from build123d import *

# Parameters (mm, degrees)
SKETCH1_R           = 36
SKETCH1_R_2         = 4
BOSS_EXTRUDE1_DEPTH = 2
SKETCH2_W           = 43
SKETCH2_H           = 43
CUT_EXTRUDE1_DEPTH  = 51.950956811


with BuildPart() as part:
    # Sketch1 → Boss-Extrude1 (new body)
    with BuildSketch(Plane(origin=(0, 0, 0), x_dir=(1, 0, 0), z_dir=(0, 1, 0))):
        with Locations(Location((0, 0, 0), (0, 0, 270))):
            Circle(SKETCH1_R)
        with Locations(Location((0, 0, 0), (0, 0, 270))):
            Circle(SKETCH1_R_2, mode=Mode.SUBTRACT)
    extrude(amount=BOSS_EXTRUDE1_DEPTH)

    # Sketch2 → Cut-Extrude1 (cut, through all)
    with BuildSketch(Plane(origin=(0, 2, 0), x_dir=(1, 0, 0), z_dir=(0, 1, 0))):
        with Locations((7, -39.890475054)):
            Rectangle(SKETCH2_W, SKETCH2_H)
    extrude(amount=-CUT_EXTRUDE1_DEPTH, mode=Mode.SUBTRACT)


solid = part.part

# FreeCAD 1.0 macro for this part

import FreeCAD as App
import Part
import Sketcher
Q = App.Units.Quantity

doc = App.newDocument("Part")
params = doc.addObject("Spreadsheet::Sheet", "Params")
for row, (alias, value) in enumerate([
    ("sketch1_diameter", "72 mm"),
    ("sketch1_diameter2", "8 mm"),
    ("pad1_length", "2 mm"),
    ("sketch2_width", "43 mm"),
], start=1):
    params.set(f"A{row}", alias)
    params.set(f"B{row}", "=" + value)
    params.setAlias(f"B{row}", alias)

body = doc.addObject("PartDesign::Body", "Body")

sketch1 = body.newObject("Sketcher::SketchObject", "Sketch")
sketch1.AttachmentSupport = (doc.getObject("XZ_Plane"), [""])
sketch1.MapMode = "FlatFace"
sketch1.addGeometry(Part.Circle(App.Vector(0, 0, 0), App.Vector(0, 0, 1), 36), False)
sketch1.addGeometry(Part.Circle(App.Vector(0, 0, 0), App.Vector(0, 0, 1), 4), False)
sketch1.addConstraint(Sketcher.Constraint("Coincident", 0, 3, -1, 1))
sketch1.addConstraint(Sketcher.Constraint("Coincident", 1, 3, -1, 1))
sketch1.addConstraint(Sketcher.Constraint("Diameter", 0, Q("72 mm")))
sketch1.addConstraint(Sketcher.Constraint("Diameter", 1, Q("8 mm")))
sketch1.setExpression("Constraints[2]", "Params.sketch1_diameter")
sketch1.setExpression("Constraints[3]", "Params.sketch1_diameter2")
pad1 = body.newObject("PartDesign::Pad", "Pad")
pad1.Profile = sketch1
pad1.setExpression("Length", "Params.pad1_length")
pad1.Reversed = True

sketch2 = body.newObject("Sketcher::SketchObject", "Sketch001")
sketch2.AttachmentSupport = (doc.getObject("XZ_Plane"), [""])
sketch2.MapMode = "FlatFace"
sketch2.AttachmentOffset = App.Placement(App.Vector(0, 0, -2), App.Rotation())
sketch2.addGeometry(Part.LineSegment(App.Vector(-14, 18, 0), App.Vector(-14, 61, 0)), False)
sketch2.addGeometry(Part.LineSegment(App.Vector(-14, 61, 0), App.Vector(28, 61, 0)), False)
sketch2.addGeometry(Part.LineSegment(App.Vector(28, 61, 0), App.Vector(28, 18, 0)), False)
sketch2.addGeometry(Part.LineSegment(App.Vector(28, 18, 0), App.Vector(-14, 18, 0)), False)
sketch2.addConstraint(Sketcher.Constraint("Coincident", 0, 2, 1, 1))
sketch2.addConstraint(Sketcher.Constraint("Coincident", 1, 2, 2, 1))
sketch2.addConstraint(Sketcher.Constraint("Coincident", 2, 2, 3, 1))
sketch2.addConstraint(Sketcher.Constraint("Coincident", 3, 2, 0, 1))
sketch2.addConstraint(Sketcher.Constraint("Vertical", 0))
sketch2.addConstraint(Sketcher.Constraint("Horizontal", 1))
sketch2.addConstraint(Sketcher.Constraint("Vertical", 2))
sketch2.addConstraint(Sketcher.Constraint("Horizontal", 3))
sketch2.addConstraint(Sketcher.Constraint("Equal", 3, 0))
sketch2.addConstraint(Sketcher.Constraint("DistanceX", 1, 1, 1, 2, Q("43 mm")))
sketch2.addConstraint(Sketcher.Constraint("DistanceX", 0, 2, -1, 1, Q("14.5 mm")))
sketch2.addConstraint(Sketcher.Constraint("DistanceY", -1, 1, 0, 2, Q("61.390475 mm")))
sketch2.setExpression("Constraints[9]", "Params.sketch2_width")
pocket1 = body.newObject("PartDesign::Pocket", "Pocket")
pocket1.Profile = sketch2
pocket1.Type = "ThroughAll"
pocket1.Reversed = True

doc.recompute()
